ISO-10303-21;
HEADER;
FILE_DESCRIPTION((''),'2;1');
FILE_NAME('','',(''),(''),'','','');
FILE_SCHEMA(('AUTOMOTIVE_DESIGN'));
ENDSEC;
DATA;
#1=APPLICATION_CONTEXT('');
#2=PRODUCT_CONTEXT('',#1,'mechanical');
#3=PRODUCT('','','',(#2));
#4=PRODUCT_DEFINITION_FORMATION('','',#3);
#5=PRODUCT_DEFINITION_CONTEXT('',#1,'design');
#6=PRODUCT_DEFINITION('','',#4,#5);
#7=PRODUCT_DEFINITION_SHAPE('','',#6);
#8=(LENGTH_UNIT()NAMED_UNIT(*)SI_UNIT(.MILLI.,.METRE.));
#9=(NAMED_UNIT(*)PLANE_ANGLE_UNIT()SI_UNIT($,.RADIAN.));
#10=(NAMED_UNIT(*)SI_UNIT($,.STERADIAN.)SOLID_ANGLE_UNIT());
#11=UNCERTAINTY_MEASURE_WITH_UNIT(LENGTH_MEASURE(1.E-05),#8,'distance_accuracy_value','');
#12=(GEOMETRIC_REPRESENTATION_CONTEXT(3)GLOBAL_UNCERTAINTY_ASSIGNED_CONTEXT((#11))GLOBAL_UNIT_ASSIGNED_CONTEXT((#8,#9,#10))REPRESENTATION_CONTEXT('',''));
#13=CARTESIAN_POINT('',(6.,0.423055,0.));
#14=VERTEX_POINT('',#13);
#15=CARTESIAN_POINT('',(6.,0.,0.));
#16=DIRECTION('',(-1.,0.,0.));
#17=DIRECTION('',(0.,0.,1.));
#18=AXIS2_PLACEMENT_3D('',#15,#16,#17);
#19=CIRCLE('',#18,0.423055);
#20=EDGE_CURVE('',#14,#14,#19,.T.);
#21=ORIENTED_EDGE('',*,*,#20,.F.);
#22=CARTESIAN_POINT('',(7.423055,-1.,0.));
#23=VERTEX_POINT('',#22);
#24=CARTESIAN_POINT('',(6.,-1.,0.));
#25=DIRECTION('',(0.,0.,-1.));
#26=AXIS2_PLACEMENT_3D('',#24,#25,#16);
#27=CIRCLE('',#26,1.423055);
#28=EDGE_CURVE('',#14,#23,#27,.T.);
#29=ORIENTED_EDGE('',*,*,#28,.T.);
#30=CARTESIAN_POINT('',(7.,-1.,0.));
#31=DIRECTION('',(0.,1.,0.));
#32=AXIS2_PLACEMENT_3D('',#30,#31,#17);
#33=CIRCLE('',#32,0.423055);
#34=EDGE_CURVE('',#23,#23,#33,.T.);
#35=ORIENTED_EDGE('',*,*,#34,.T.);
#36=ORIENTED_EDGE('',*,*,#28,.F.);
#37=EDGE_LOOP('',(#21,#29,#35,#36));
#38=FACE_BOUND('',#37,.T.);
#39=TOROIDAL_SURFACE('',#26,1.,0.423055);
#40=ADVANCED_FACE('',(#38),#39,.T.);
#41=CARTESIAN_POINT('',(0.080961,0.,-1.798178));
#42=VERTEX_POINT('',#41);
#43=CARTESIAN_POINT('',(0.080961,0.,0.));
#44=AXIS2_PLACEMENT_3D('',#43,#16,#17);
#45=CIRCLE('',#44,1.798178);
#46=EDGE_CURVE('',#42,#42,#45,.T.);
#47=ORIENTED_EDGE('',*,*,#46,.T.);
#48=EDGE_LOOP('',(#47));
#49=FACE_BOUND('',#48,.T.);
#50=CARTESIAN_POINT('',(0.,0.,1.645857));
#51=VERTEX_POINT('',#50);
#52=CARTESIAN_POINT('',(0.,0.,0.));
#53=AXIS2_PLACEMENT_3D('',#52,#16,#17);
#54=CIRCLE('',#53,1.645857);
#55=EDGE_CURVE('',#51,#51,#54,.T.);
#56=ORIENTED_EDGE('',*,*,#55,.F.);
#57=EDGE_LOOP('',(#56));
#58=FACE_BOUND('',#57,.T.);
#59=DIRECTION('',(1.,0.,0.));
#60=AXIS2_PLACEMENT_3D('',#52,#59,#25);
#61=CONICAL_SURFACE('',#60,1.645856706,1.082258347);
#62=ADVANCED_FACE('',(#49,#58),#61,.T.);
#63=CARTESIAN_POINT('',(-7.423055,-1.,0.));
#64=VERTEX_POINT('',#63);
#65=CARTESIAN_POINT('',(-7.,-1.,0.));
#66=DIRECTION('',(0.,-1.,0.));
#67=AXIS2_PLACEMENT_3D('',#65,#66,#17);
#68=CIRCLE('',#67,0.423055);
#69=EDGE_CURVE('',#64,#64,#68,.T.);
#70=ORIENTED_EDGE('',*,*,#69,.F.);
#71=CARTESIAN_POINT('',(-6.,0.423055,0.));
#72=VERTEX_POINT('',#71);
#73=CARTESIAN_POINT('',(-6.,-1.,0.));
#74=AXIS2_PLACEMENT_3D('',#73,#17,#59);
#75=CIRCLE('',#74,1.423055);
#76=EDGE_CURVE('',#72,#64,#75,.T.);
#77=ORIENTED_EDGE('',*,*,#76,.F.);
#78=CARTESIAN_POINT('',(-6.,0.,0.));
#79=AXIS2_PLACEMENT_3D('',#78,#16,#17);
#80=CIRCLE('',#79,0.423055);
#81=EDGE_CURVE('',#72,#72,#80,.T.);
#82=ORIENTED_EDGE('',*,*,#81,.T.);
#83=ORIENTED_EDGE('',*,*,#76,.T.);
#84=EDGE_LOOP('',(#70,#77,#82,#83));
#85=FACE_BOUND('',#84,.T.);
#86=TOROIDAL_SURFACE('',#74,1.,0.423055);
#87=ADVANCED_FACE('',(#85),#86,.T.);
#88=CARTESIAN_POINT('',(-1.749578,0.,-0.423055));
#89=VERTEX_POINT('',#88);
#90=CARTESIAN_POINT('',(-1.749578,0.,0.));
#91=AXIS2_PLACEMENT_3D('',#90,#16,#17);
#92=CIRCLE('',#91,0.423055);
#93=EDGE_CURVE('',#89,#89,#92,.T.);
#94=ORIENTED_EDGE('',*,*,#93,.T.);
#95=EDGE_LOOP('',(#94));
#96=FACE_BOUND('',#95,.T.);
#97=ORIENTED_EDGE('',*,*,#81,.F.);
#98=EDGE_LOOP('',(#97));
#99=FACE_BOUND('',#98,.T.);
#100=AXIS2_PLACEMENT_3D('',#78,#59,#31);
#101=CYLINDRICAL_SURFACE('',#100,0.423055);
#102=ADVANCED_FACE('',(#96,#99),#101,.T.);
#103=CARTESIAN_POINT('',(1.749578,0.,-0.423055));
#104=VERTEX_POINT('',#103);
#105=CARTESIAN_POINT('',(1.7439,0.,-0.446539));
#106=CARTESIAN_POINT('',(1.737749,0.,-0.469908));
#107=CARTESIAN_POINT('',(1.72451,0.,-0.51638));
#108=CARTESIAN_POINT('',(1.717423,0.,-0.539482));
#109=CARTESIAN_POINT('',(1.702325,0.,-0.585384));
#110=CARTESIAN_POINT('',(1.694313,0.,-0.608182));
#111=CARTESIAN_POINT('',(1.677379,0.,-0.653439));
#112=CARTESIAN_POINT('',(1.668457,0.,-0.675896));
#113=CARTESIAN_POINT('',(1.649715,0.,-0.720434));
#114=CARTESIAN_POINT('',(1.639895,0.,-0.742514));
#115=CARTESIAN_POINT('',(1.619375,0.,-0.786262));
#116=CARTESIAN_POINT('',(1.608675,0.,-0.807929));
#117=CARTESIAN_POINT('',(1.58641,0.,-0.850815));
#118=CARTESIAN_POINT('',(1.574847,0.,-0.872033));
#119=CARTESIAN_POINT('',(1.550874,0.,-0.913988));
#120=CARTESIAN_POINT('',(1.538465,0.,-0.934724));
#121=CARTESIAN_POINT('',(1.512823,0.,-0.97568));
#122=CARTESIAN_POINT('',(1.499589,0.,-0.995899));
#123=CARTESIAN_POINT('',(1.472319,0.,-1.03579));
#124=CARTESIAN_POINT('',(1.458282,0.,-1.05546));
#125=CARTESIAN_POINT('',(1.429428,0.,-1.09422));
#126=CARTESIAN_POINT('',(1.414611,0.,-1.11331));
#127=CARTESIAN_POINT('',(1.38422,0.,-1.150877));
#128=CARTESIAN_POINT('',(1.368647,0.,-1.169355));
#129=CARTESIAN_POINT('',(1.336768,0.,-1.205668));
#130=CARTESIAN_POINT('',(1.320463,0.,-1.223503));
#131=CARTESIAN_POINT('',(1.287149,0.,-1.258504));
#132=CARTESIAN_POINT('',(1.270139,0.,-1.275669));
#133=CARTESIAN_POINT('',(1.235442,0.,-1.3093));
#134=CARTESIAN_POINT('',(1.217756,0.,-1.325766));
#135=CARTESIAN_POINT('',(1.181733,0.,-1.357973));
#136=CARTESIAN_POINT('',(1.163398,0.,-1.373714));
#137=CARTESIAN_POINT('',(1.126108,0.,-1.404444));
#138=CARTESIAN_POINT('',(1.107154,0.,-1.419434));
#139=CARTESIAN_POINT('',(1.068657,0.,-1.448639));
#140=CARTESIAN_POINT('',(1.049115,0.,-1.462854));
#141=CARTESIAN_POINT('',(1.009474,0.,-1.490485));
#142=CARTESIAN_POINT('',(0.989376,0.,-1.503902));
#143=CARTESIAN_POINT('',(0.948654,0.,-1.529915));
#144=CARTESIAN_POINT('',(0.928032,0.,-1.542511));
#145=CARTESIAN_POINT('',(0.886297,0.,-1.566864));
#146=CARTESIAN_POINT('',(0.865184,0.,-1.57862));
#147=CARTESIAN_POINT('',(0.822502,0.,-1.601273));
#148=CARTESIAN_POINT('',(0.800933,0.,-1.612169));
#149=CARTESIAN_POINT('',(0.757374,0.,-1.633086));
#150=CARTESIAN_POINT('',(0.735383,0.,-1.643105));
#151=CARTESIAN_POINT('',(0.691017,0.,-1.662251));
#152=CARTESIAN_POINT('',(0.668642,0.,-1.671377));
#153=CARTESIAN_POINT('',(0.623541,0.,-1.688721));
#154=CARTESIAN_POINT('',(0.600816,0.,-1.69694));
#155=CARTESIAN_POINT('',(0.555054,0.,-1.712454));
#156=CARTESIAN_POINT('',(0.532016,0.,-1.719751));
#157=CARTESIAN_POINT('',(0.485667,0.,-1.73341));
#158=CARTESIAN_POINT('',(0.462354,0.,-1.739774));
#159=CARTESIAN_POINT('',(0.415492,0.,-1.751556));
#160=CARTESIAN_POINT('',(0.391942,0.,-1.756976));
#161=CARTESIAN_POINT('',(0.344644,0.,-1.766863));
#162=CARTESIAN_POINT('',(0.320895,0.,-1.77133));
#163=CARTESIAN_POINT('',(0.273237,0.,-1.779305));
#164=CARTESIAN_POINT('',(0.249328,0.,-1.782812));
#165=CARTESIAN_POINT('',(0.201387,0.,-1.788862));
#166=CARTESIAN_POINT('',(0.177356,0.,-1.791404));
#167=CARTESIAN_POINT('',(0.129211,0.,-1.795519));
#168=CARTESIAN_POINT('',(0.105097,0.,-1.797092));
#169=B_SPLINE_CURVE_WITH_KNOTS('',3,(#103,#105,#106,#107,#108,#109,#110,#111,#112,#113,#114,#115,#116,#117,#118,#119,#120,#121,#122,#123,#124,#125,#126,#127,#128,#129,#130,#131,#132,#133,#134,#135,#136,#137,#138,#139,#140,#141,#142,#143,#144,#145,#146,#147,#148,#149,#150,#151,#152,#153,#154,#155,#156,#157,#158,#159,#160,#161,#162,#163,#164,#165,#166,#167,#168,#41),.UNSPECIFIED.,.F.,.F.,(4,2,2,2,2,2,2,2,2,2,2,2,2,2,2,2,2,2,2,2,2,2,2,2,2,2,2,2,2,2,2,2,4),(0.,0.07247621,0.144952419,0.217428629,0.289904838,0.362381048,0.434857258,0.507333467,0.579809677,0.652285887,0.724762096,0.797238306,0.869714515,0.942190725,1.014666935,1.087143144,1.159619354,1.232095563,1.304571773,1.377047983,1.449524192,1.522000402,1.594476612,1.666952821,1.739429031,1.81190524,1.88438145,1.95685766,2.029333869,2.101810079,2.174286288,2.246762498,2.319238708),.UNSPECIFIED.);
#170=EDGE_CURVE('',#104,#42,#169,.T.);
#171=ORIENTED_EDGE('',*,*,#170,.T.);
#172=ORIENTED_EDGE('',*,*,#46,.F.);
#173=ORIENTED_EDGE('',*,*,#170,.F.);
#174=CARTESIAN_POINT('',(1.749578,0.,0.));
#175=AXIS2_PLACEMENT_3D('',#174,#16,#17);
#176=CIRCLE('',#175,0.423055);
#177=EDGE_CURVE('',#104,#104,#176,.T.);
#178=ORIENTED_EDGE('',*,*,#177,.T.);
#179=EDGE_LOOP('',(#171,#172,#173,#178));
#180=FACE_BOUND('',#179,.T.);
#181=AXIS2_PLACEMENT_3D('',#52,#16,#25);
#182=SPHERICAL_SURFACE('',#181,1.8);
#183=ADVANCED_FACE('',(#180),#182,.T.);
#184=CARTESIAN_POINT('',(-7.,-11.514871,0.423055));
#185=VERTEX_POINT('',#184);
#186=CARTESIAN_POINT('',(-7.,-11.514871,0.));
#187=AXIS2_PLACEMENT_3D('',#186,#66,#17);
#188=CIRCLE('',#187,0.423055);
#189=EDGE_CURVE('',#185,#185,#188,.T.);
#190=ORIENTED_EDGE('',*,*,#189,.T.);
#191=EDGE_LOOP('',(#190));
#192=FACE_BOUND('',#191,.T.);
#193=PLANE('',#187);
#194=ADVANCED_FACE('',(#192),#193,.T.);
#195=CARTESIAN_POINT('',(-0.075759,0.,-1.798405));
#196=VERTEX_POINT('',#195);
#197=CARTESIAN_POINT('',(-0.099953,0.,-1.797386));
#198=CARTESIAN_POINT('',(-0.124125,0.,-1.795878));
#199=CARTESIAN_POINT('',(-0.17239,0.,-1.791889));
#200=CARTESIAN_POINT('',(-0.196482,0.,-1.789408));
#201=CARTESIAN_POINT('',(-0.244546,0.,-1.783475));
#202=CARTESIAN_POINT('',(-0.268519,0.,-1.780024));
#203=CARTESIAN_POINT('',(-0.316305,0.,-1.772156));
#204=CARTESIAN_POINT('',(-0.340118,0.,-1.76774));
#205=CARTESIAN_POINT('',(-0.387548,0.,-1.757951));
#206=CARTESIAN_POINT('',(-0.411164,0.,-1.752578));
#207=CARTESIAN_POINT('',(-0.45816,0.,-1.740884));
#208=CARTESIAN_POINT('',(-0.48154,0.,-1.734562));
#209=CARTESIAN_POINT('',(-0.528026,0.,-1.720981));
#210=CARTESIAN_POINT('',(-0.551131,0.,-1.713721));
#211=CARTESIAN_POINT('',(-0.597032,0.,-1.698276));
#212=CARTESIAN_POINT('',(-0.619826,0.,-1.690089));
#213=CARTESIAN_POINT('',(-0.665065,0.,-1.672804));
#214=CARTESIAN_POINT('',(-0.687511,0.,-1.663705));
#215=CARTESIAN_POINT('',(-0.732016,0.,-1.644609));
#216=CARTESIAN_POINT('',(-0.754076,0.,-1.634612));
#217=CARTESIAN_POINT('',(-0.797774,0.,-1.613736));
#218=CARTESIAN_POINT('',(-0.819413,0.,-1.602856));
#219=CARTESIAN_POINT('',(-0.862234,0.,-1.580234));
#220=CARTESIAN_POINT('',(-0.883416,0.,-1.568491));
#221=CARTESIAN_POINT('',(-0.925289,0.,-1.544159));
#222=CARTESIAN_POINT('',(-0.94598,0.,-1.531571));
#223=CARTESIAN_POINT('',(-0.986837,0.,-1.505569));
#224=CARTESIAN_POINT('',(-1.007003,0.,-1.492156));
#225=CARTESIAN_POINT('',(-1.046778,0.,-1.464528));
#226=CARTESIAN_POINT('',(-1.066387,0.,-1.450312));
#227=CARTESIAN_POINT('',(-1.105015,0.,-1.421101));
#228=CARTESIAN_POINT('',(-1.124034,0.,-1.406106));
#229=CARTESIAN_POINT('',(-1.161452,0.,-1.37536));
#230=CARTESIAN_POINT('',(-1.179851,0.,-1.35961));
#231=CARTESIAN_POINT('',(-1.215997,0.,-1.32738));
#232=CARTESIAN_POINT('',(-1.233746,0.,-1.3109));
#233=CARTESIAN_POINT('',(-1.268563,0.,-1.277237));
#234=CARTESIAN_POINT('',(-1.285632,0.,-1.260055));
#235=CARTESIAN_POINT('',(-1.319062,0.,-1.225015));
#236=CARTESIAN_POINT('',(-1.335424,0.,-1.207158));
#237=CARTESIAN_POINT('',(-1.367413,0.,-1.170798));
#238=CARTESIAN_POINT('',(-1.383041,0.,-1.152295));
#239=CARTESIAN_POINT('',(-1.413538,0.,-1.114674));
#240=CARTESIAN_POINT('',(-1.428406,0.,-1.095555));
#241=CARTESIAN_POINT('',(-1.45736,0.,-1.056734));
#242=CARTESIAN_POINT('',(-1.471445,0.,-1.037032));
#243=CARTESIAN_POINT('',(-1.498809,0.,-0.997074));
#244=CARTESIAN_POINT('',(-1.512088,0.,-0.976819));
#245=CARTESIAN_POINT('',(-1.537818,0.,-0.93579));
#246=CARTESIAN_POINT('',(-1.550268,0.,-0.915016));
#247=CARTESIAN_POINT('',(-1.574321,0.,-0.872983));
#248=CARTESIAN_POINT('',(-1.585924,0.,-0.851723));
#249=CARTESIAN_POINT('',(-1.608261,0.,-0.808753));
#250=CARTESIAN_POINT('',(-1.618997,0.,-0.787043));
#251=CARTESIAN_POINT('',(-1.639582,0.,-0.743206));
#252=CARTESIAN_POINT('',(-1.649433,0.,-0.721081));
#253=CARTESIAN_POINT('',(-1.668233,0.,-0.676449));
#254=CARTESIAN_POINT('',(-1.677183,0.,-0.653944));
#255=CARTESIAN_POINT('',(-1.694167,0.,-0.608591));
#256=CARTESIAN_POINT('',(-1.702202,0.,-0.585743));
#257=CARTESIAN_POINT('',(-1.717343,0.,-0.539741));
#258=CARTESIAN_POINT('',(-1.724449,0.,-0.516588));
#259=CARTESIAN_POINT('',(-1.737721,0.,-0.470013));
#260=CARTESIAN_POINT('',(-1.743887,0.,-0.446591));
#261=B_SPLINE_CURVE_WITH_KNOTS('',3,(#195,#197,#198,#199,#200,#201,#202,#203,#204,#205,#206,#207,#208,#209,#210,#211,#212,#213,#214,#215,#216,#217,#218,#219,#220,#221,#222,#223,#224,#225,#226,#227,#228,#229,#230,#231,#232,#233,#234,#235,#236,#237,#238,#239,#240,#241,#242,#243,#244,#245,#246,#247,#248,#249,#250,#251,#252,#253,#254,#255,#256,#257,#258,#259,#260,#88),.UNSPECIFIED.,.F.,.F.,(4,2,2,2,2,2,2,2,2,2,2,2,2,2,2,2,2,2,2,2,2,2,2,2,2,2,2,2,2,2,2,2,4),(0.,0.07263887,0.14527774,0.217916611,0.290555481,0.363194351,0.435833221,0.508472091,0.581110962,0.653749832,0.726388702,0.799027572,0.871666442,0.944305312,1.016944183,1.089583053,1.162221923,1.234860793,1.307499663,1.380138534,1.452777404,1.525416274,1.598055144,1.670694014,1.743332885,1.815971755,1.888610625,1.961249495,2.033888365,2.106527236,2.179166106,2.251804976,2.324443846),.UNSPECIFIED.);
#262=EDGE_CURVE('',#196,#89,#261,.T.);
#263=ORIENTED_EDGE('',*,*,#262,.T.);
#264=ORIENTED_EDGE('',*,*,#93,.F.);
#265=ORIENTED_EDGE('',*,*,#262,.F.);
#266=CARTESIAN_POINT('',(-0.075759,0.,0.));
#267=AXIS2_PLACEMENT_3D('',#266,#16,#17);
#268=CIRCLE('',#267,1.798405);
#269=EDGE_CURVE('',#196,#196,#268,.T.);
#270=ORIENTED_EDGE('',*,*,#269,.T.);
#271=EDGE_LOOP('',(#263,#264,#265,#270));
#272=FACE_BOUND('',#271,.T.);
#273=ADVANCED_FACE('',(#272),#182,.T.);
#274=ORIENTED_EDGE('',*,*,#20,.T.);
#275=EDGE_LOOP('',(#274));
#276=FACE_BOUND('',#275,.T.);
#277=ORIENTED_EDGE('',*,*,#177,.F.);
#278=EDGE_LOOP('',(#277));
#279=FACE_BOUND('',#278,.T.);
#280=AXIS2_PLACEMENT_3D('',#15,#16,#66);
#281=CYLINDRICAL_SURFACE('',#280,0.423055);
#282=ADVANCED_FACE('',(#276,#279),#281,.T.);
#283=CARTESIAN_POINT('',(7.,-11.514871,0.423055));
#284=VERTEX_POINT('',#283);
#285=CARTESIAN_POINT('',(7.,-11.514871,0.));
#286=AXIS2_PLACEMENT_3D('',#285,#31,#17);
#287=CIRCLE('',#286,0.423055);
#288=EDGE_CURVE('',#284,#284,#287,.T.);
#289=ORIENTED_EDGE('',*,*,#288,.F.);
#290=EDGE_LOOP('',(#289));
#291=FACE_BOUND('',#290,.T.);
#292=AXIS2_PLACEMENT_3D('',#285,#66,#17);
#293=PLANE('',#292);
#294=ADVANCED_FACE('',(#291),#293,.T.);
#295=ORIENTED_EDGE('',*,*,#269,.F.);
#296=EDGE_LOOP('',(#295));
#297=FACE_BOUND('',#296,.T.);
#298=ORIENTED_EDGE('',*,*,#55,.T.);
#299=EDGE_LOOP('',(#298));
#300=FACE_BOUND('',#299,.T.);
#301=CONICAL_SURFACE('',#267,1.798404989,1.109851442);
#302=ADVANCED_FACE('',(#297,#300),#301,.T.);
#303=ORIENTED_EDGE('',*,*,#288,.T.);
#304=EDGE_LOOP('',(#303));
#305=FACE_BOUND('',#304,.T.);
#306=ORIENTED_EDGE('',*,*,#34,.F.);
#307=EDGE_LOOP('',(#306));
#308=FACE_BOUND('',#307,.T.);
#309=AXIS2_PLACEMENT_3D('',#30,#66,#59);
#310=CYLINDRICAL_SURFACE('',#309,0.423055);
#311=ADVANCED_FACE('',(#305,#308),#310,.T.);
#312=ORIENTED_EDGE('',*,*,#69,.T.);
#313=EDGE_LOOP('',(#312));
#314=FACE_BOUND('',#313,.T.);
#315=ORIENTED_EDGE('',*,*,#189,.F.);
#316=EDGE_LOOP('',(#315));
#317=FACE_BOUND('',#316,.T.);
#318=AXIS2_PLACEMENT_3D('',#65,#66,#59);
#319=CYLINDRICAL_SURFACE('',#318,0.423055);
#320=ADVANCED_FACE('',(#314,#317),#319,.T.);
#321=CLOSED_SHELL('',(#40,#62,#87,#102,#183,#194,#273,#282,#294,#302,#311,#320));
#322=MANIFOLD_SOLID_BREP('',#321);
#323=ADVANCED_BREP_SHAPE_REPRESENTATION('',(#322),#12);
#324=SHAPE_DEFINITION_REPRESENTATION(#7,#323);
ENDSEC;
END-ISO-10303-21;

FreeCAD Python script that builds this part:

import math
import FreeCAD as App
import Part
import Sketcher
from FreeCAD import Vector

doc = App.newDocument("Part")
body = doc.addObject("PartDesign::Body", "Body")

sketch1 = doc.addObject("Sketcher::SketchObject", "Sketch")
body.addObject(sketch1)
sketch1.AttachmentSupport = (doc.XZ_Plane, [""])
sketch1.MapMode = "FlatFace"
sketch1.addGeometry([
    Part.LineSegment(Vector(-1.75, -0.42, 0), Vector(-1.75, 0, 0)),
    Part.LineSegment(Vector(-1.75, 0, 0), Vector(1.75, 0, 0)),
    Part.LineSegment(Vector(1.75, 0, 0), Vector(1.75, -0.42, 0)),
    Part.ArcOfCircle(Part.Circle(Vector(0, 0, 0), Vector(0, 0, 1), 1.8), math.radians(-87), math.radians(-14)),
    Part.LineSegment(Vector(0.08, -1.8, 0), Vector(0, -1.65, 0)),
    Part.LineSegment(Vector(0, -1.65, 0), Vector(-0.08, -1.8, 0)),
    Part.ArcOfCircle(Part.Circle(Vector(0, 0, 0), Vector(0, 0, 1), 1.8), math.radians(-166), math.radians(-92)),
], False)
sketch1.addConstraint([
    Sketcher.Constraint("Coincident", 0, 2, 1, 1),
    Sketcher.Constraint("Coincident", 1, 2, 2, 1),
    Sketcher.Constraint("Coincident", 2, 2, 3, 2),
    Sketcher.Constraint("Coincident", 3, 1, 4, 1),
    Sketcher.Constraint("Coincident", 4, 2, 5, 1),
    Sketcher.Constraint("Coincident", 5, 2, 6, 2),
    Sketcher.Constraint("Coincident", 6, 1, 0, 1),
    Sketcher.Constraint("Vertical", 0),
    Sketcher.Constraint("Horizontal", 1),
    Sketcher.Constraint("Vertical", 2),
    Sketcher.Constraint("Coincident", 3, 3, -1, 1),
    Sketcher.Constraint("Coincident", 6, 3, -1, 1),
    Sketcher.Constraint("Equal", 3, 6),
    Sketcher.Constraint("Symmetric", 0, 2, 1, 2, -1, 1),
    Sketcher.Constraint("PointOnObject", 4, 2, -2),
    Sketcher.Constraint("Radius", 3, 1.8),
    Sketcher.Constraint("Distance", 4, 0.172501),
    Sketcher.Constraint("DistanceY", 4, 2, 2, 2, 1.222802),
    Sketcher.Constraint("DistanceX", 1, 1, 1, 2, 3.499157),
    Sketcher.Constraint("DistanceX", 5, 2, -1, 1, 0.075759),
])
revolution = doc.addObject("PartDesign::Revolution", "Revolution")
body.addObject(revolution)
revolution.Profile = sketch1
revolution.ReferenceAxis = (sketch1, ["H_Axis"])
revolution.Angle = 360

sketch2 = doc.addObject("Sketcher::SketchObject", "Sketch001")
body.addObject(sketch2)
sketch2.AttachmentSupport = (doc.YZ_Plane, [""])
sketch2.MapMode = "FlatFace"
sketch2.AttachmentOffset = App.Placement(Vector(0, 0, -1.749578), App.Rotation())
sketch2.addGeometry(Part.Circle(Vector(0, 0, 0), Vector(0, 0, 1), 0.42), False)
sketch2.addConstraint([
    Sketcher.Constraint("Coincident", 0, 3, -1, 1),
    Sketcher.Constraint("Diameter", 0, 0.84611),
])

sketch3 = doc.addObject("Sketcher::SketchObject", "Sketch002")
body.addObject(sketch3)
sketch3.AttachmentSupport = (doc.XY_Plane, [""])
sketch3.MapMode = "FlatFace"
sketch3.addGeometry([
    Part.LineSegment(Vector(0, 0, 0), Vector(-6, 0, 0)),
    Part.ArcOfCircle(Part.Circle(Vector(-6, -1, 0), Vector(0, 0, 1), 1), math.radians(90), math.radians(180)),
    Part.LineSegment(Vector(-7, -1, 0), Vector(-7, -11.5, 0)),
], False)
sketch3.addConstraint([
    Sketcher.Constraint("Tangent", 0, 2, 1, 1),
    Sketcher.Constraint("Tangent", 1, 2, 2, 1),
    Sketcher.Constraint("Horizontal", 0),
    Sketcher.Constraint("Vertical", 2),
    Sketcher.Constraint("Coincident", 0, 1, -1, 1),
    Sketcher.Constraint("Radius", 1, 1.0),
    Sketcher.Constraint("DistanceX", 0, 2, 0, 1, 6.0),
    Sketcher.Constraint("DistanceY", 2, 2, 2, 1, 10.514871),
])
doc.recompute()

additivepipe = doc.addObject("PartDesign::AdditivePipe", "AdditivePipe")
body.addObject(additivepipe)
additivepipe.Profile = sketch2
additivepipe.Spine = (sketch3, ["Edge1", "Edge2", "Edge3"])
doc.recompute()

mirrored = doc.addObject("PartDesign::Mirrored", "Mirrored")
body.addObject(mirrored)
mirrored.Originals = [additivepipe]
mirrored.MirrorPlane = (doc.YZ_Plane, [""])
body.Tip = mirrored

doc.recompute()
